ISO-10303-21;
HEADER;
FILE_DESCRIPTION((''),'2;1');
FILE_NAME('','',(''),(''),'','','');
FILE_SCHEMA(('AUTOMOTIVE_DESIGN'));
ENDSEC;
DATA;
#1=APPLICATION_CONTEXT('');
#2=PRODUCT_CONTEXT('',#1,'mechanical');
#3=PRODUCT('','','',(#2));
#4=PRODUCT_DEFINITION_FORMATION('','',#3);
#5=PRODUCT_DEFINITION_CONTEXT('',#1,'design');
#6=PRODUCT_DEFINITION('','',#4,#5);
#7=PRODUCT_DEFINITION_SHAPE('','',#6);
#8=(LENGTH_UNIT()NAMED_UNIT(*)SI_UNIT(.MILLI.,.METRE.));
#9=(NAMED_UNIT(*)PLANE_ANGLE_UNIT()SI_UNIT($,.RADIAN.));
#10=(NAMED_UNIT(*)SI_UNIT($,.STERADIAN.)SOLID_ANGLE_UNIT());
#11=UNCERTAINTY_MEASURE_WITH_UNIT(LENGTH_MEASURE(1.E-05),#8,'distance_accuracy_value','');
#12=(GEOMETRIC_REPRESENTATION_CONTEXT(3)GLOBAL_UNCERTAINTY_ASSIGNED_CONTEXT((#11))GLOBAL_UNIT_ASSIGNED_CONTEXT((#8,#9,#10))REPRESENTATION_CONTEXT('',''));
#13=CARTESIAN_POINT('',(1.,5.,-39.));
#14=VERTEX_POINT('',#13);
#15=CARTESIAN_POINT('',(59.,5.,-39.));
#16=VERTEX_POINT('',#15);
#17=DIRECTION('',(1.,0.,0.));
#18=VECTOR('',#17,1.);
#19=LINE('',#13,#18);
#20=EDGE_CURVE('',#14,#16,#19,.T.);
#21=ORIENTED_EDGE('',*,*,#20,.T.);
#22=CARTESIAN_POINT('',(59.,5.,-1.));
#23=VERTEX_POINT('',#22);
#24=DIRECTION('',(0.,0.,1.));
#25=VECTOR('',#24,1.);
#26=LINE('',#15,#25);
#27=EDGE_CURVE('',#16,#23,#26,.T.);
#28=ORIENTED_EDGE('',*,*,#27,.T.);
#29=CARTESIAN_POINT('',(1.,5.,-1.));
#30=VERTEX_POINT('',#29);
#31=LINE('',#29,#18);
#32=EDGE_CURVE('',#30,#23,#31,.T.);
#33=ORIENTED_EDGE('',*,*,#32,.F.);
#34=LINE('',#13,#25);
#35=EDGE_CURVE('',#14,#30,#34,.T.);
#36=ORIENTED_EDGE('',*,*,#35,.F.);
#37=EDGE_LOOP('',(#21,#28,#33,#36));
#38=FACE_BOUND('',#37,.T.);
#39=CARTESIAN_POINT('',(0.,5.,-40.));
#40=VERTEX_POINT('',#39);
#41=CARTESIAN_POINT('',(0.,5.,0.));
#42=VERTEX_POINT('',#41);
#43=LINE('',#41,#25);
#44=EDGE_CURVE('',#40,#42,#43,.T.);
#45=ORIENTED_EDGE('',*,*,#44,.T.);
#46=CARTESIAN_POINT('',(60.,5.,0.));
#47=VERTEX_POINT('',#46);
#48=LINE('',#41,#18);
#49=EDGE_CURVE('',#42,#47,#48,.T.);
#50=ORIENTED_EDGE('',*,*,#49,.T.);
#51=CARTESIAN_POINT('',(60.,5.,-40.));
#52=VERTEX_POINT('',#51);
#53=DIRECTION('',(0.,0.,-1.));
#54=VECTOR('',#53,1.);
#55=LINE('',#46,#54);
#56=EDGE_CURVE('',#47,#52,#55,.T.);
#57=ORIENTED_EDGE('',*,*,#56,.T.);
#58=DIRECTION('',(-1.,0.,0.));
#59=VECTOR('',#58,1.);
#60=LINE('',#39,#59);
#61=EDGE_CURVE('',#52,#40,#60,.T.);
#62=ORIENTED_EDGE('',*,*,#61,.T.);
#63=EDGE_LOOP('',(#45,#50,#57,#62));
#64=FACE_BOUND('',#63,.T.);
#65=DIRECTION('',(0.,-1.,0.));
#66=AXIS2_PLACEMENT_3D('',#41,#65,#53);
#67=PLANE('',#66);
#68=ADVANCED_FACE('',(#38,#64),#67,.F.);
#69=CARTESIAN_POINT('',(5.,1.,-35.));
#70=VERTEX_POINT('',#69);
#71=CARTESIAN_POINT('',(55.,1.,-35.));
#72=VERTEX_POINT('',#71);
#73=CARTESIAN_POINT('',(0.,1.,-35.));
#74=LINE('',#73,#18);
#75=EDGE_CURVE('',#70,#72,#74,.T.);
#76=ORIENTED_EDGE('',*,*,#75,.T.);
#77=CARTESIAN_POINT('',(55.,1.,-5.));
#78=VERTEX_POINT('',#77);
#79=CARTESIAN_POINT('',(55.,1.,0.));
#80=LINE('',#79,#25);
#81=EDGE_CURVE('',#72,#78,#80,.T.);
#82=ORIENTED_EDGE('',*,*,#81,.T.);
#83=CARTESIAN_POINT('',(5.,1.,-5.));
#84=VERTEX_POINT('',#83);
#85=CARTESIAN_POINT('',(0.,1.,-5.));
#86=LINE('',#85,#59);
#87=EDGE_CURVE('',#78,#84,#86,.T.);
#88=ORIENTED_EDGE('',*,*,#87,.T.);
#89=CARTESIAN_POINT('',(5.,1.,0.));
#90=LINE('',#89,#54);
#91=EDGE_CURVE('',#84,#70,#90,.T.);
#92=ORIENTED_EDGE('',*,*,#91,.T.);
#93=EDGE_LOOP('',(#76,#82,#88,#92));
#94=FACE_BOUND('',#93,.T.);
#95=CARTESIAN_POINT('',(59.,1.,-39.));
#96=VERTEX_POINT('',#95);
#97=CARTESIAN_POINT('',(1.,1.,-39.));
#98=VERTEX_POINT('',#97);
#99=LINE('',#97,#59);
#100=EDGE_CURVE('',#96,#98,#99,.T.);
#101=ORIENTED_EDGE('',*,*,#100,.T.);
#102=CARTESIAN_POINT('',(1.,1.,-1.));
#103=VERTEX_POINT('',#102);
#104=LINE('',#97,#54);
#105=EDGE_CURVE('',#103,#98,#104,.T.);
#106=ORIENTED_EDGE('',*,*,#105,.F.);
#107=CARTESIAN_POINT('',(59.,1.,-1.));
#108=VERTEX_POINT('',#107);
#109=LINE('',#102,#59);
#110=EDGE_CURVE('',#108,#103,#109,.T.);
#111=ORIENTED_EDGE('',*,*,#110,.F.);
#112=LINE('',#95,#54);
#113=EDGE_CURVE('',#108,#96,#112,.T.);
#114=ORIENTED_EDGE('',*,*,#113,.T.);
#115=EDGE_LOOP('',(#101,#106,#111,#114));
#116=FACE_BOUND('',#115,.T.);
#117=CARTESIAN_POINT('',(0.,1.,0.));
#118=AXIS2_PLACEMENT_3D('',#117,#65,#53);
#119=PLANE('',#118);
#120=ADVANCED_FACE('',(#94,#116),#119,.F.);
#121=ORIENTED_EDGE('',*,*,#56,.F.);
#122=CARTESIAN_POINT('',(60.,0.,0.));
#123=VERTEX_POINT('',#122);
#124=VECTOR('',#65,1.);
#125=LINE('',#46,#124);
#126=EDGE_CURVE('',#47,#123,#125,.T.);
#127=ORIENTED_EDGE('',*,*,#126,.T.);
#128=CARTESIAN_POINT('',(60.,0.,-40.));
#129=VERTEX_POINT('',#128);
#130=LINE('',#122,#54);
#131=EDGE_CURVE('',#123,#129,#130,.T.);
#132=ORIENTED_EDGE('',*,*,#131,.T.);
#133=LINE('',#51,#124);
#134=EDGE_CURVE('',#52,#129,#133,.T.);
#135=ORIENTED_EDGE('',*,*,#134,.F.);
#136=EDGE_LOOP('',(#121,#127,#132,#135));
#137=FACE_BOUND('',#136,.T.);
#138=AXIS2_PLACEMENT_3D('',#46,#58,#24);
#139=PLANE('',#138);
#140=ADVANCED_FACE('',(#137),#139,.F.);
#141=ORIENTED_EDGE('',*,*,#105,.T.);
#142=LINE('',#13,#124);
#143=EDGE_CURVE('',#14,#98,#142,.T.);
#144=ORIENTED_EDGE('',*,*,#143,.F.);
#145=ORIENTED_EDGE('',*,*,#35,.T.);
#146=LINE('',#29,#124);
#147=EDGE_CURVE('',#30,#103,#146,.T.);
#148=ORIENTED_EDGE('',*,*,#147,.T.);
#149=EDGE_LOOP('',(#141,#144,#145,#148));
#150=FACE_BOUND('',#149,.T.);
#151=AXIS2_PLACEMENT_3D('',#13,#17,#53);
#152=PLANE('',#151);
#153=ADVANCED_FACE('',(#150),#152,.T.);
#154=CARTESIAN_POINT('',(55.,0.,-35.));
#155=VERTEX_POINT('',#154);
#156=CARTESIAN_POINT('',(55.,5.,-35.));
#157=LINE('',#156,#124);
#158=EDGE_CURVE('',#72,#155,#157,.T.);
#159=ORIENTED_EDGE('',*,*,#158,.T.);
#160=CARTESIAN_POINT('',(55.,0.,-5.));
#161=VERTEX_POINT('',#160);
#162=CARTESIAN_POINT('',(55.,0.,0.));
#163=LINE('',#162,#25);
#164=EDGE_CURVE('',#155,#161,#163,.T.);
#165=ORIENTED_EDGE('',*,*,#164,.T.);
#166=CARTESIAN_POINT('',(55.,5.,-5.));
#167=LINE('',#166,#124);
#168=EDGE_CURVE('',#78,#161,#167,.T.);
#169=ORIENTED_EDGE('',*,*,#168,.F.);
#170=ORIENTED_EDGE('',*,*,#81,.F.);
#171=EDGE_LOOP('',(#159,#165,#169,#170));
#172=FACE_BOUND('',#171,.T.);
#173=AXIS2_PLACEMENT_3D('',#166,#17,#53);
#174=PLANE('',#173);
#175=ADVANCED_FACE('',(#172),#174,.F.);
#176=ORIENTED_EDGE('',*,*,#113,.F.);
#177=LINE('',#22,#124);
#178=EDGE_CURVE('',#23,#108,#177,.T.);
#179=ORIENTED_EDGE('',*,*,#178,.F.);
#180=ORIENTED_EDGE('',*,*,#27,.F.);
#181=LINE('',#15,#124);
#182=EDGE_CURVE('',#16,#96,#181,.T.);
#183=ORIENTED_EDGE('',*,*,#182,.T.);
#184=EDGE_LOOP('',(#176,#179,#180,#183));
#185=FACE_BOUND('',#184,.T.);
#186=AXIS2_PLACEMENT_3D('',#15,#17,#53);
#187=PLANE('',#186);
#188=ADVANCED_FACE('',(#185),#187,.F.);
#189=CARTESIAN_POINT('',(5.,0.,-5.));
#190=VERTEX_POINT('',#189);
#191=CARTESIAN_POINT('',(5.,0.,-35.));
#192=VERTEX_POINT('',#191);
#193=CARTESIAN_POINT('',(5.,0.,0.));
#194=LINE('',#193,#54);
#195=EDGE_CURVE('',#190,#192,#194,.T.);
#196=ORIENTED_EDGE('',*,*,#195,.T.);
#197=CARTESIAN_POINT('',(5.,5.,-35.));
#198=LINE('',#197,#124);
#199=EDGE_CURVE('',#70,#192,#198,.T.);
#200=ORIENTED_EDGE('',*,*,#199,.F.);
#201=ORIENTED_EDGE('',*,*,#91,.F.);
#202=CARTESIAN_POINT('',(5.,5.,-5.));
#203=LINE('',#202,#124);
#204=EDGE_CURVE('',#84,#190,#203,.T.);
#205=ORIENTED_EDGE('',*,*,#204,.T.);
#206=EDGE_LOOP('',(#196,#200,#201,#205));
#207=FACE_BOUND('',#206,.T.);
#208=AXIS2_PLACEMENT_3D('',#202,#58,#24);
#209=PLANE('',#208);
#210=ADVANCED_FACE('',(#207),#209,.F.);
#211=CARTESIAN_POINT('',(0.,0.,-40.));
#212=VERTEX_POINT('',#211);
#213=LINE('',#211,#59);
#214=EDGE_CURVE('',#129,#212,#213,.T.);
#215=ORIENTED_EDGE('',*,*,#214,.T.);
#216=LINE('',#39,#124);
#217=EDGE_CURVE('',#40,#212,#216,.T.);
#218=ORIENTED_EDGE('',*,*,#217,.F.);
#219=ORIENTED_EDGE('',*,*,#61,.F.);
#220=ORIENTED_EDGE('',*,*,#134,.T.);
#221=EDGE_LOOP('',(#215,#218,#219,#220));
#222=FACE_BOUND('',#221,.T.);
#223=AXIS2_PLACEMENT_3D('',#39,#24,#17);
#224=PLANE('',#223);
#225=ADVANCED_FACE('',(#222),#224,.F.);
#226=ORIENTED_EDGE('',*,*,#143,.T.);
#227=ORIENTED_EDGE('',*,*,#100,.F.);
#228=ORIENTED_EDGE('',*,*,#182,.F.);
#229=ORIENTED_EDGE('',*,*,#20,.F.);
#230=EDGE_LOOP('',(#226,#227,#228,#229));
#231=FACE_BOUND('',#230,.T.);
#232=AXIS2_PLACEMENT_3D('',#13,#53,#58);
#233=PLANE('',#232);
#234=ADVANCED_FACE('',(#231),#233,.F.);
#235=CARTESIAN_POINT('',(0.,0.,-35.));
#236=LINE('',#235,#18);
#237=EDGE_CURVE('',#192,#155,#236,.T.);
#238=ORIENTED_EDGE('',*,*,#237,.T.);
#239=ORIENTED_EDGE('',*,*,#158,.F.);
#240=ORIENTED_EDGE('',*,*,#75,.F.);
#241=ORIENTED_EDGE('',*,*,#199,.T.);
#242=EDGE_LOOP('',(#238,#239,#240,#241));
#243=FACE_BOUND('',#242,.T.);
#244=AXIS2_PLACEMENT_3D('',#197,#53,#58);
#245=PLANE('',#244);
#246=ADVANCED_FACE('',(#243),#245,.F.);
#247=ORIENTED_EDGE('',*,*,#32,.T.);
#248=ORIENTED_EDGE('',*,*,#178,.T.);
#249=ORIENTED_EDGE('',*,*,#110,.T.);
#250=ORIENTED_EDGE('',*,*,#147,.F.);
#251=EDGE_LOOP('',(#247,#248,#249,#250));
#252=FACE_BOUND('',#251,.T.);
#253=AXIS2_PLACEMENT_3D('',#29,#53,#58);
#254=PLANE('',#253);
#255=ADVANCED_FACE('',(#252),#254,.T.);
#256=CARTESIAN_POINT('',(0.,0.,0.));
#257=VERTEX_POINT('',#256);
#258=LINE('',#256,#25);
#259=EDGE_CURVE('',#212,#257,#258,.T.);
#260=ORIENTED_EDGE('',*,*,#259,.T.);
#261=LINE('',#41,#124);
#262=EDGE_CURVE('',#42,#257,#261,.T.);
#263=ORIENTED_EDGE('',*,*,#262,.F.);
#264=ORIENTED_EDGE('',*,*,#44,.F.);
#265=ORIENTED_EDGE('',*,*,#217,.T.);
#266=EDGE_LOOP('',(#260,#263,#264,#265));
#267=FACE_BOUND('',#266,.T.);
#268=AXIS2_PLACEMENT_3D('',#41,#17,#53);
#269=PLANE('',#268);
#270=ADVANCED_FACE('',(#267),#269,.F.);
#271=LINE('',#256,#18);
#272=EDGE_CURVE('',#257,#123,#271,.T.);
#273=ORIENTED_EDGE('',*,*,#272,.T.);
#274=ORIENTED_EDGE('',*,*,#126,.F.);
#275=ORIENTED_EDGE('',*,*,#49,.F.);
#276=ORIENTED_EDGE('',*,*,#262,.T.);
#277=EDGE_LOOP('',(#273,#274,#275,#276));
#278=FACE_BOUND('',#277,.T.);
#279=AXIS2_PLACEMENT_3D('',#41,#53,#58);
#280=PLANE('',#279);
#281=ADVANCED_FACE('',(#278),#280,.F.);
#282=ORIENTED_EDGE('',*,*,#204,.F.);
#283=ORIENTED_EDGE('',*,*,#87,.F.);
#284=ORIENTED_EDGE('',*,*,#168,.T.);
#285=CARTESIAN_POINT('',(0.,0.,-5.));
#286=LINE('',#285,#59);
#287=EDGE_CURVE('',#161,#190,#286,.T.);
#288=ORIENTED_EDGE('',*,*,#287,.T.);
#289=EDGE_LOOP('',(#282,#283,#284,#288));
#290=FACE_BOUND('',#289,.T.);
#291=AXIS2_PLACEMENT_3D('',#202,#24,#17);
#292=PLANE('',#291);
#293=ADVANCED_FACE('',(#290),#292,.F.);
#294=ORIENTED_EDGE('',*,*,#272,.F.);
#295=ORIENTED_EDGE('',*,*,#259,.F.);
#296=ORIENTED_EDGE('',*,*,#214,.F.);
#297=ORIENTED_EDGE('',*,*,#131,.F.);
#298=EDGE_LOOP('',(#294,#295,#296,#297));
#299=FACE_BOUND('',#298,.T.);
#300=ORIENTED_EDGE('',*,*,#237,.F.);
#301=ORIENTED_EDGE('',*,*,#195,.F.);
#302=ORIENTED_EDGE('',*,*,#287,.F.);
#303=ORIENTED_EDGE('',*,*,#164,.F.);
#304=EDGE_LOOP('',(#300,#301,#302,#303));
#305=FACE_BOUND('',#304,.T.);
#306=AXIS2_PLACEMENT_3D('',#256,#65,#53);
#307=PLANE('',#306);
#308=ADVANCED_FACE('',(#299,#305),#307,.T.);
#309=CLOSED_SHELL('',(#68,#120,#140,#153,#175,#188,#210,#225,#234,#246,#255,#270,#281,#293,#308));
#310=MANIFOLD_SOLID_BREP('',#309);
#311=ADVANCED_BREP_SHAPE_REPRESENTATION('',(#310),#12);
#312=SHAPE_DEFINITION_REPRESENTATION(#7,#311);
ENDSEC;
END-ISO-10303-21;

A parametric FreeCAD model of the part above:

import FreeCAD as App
import Part
import Sketcher

V = App.Vector


def add_polygon(sketch, points):
    """Adds a closed chain of lines whose ends are joined by coincident constraints."""
    first, n = sketch.GeometryCount, len(points)
    for a, b in zip(points, points[1:] + points[:1]):
        sketch.addGeometry(Part.LineSegment(App.Vector(*a, 0), App.Vector(*b, 0)), False)
    for i in range(n):
        sketch.addConstraint(Sketcher.Constraint("Coincident", first + i, 2, first + (i + 1) % n, 1))

doc = App.newDocument("Part")
body = doc.addObject("PartDesign::Body", "Body")

sketch1 = body.newObject("Sketcher::SketchObject", "Sketch")
sketch1.AttachmentSupport = (doc.getObject("XZ_Plane"), [""])
sketch1.MapMode = "FlatFace"
add_polygon(sketch1, [(0, -40), (0, 0), (60, 0), (60, -40)])
sketch1.addConstraint([
    Sketcher.Constraint("Vertical", 0),
    Sketcher.Constraint("Horizontal", 1),
    Sketcher.Constraint("Vertical", 2),
    Sketcher.Constraint("Horizontal", 3),
    Sketcher.Constraint("Coincident", 0, 2, -1, 1),
    Sketcher.Constraint("DistanceX", 1, 1, 1, 2, 60.0),
    Sketcher.Constraint("DistanceY", 0, 1, 0, 2, 40.0),
])
pad1 = body.newObject("PartDesign::Pad", "Pad")
pad1.Profile = sketch1
pad1.Length = 5
pad1.Reversed = True

sketch2 = body.newObject("Sketcher::SketchObject", "Sketch001")
sketch2.AttachmentSupport = (doc.getObject("XZ_Plane"), [""])
sketch2.MapMode = "FlatFace"
add_polygon(sketch2, [(1, -39), (1, -1), (59, -1), (59, -39)])
sketch2.addConstraint([
    Sketcher.Constraint("Vertical", 0),
    Sketcher.Constraint("Horizontal", 1),
    Sketcher.Constraint("Vertical", 2),
    Sketcher.Constraint("Horizontal", 3),
    Sketcher.Constraint("DistanceX", 1, 1, 1, 2, 58.0),
    Sketcher.Constraint("DistanceY", 0, 1, 0, 2, 38.0),
    Sketcher.Constraint("DistanceX", -1, 1, 0, 2, 1.0),
    Sketcher.Constraint("DistanceY", 0, 2, -1, 1, 1.0),
])
pocket1 = body.newObject("PartDesign::Pocket", "Pocket")
pocket1.Profile = sketch2
pocket1.Type = "ThroughAll"
pocket1.Midplane = True

sketch3 = body.newObject("Sketcher::SketchObject", "Sketch002")
sketch3.AttachmentSupport = (doc.getObject("XZ_Plane"), [""])
sketch3.MapMode = "FlatFace"
add_polygon(sketch3, [(0, -40), (0, 0), (60, 0), (60, -40)])
sketch3.addConstraint([
    Sketcher.Constraint("Vertical", 0),
    Sketcher.Constraint("Horizontal", 1),
    Sketcher.Constraint("Vertical", 2),
    Sketcher.Constraint("Horizontal", 3),
    Sketcher.Constraint("Coincident", 0, 2, -1, 1),
    Sketcher.Constraint("DistanceX", 1, 1, 1, 2, 60.0),
    Sketcher.Constraint("DistanceY", 0, 1, 0, 2, 40.0),
])
pad2 = body.newObject("PartDesign::Pad", "Pad001")
pad2.Profile = sketch3
pad2.Length = 1
pad2.Reversed = True

sketch4 = body.newObject("Sketcher::SketchObject", "Sketch003")
sketch4.AttachmentSupport = (doc.getObject("XZ_Plane"), [""])
sketch4.MapMode = "FlatFace"
add_polygon(sketch4, [(5, -5), (5, -35), (55, -35), (55, -5)])
sketch4.addConstraint([
    Sketcher.Constraint("Vertical", 0),
    Sketcher.Constraint("Horizontal", 1),
    Sketcher.Constraint("Vertical", 2),
    Sketcher.Constraint("Horizontal", 3),
    Sketcher.Constraint("DistanceX", 1, 1, 1, 2, 50.0),
    Sketcher.Constraint("DistanceY", 0, 2, 0, 1, 30.0),
    Sketcher.Constraint("DistanceX", -1, 1, 0, 2, 5.0),
    Sketcher.Constraint("DistanceY", 0, 2, -1, 1, 35.0),
])
pocket2 = body.newObject("PartDesign::Pocket", "Pocket001")
pocket2.Profile = sketch4
pocket2.Type = "ThroughAll"
pocket2.Midplane = True

doc.recompute()
